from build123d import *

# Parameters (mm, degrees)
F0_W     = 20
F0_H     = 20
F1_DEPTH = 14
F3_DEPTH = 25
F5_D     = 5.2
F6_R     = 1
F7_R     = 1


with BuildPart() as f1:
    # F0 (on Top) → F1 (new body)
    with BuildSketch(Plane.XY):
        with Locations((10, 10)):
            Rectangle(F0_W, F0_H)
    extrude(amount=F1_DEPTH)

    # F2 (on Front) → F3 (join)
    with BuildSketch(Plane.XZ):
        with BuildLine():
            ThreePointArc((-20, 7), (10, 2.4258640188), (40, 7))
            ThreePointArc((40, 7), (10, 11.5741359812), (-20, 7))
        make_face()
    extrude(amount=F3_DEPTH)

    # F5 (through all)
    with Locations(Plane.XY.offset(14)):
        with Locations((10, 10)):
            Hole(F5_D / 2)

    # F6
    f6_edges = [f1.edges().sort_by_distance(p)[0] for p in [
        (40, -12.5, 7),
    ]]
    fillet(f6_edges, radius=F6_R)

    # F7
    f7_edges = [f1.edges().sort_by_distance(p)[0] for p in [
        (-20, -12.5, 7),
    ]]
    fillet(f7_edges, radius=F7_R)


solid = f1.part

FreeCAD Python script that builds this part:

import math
import FreeCAD as App
import Part
import Sketcher
Q = App.Units.Quantity


def edges_at(feature, points):
    """Names of the edges that pass closest to the given points."""
    edges = feature.Shape.Edges
    near = lambda p: min(range(len(edges)), key=lambda i: edges[i].distToShape(Part.Vertex(*p))[0])
    return sorted({f"Edge{near(p) + 1}" for p in points})

doc = App.newDocument("Part")
body = doc.addObject("PartDesign::Body", "Body")

# Sketch on XY plane
sketch1 = body.newObject("Sketcher::SketchObject", "Sketch")
sketch1.AttachmentSupport = (doc.getObject("XY_Plane"), [""])
sketch1.MapMode = "FlatFace"
sketch1.addGeometry([
    Part.LineSegment(App.Vector(0, 20, 0), App.Vector(0, 0, 0)),
    Part.LineSegment(App.Vector(0, 0, 0), App.Vector(20, 0, 0)),
    Part.LineSegment(App.Vector(20, 0, 0), App.Vector(20, 20, 0)),
    Part.LineSegment(App.Vector(20, 20, 0), App.Vector(0, 20, 0)),
], False)
sketch1.addConstraint([
    Sketcher.Constraint("Coincident", 0, 2, 1, 1),
    Sketcher.Constraint("Coincident", 1, 2, 2, 1),
    Sketcher.Constraint("Coincident", 2, 2, 3, 1),
    Sketcher.Constraint("Coincident", 3, 2, 0, 1),
    Sketcher.Constraint("Vertical", 0),
    Sketcher.Constraint("Horizontal", 1),
    Sketcher.Constraint("Vertical", 2),
    Sketcher.Constraint("Horizontal", 3),
    Sketcher.Constraint("Coincident", 0, 2, -1, 1),
    Sketcher.Constraint("Equal", 3, 0),
    Sketcher.Constraint("DistanceX", 1, 1, 1, 2, Q("20 mm")),
])
pad1 = body.newObject("PartDesign::Pad", "Pad")
pad1.Profile = sketch1
pad1.Length = 14

# Sketch on XZ plane
sketch2 = body.newObject("Sketcher::SketchObject", "Sketch001")
sketch2.AttachmentSupport = (doc.getObject("XZ_Plane"), [""])
sketch2.MapMode = "FlatFace"
sketch2.addGeometry([
    Part.ArcOfCircle(Part.Circle(App.Vector(10, 103.092167, 0), App.Vector(0, 0, 1), 100.666303), math.radians(-107.338378), math.radians(-72.661622)),
    Part.ArcOfCircle(Part.Circle(App.Vector(10, -89.092167, 0), App.Vector(0, 0, 1), 100.666303), math.radians(72.661622), math.radians(107.338378)),
], False)
sketch2.addConstraint([
    Sketcher.Constraint("Coincident", 0, 1, 1, 2),
    Sketcher.Constraint("Coincident", 1, 1, 0, 2),
    Sketcher.Constraint("Equal", 0, 1),
    Sketcher.Constraint("Horizontal", 0, 1, 1, 1),
    Sketcher.Constraint("DistanceX", -1, 1, 0, 3, Q("10 mm")),
    Sketcher.Constraint("DistanceX", 0, 1, -1, 1, Q("20 mm")),
    Sketcher.Constraint("DistanceY", -1, 1, 0, 1, Q("7 mm")),
    Sketcher.Constraint("Radius", 0, Q("100.666303 mm")),
])
pad2 = body.newObject("PartDesign::Pad", "Pad001")
pad2.Profile = sketch2
pad2.Length = 25

# Sketch on XY plane
sketch3 = body.newObject("Sketcher::SketchObject", "Sketch002")
sketch3.AttachmentSupport = (doc.getObject("XY_Plane"), [""])
sketch3.MapMode = "FlatFace"
sketch3.AttachmentOffset = App.Placement(App.Vector(0, 0, 14), App.Rotation())
sketch3.addGeometry(Part.Circle(App.Vector(10, 10, 0), App.Vector(0, 0, 1), 2.6), False)
sketch3.addConstraint([
    Sketcher.Constraint("Diameter", 0, Q("5.2 mm")),
    Sketcher.Constraint("DistanceX", -1, 1, 0, 3, Q("10 mm")),
    Sketcher.Constraint("DistanceY", -1, 1, 0, 3, Q("10 mm")),
])
doc.recompute()
hole = body.newObject("PartDesign::Hole", "Hole")
hole.Profile = sketch3
hole.ThreadType = "None"
hole.Diameter = 5.2
hole.DepthType = "ThroughAll"
doc.recompute()

fillet = body.newObject("PartDesign::Fillet", "Fillet")
fillet.Base = (hole, edges_at(hole, [(40, -12.5, 7)]))
fillet.Radius = 1
doc.recompute()

fillet2 = body.newObject("PartDesign::Fillet", "Fillet001")
fillet2.Base = (fillet, edges_at(fillet, [(-20, -12.5, 7)]))
fillet2.Radius = 1

doc.recompute()
